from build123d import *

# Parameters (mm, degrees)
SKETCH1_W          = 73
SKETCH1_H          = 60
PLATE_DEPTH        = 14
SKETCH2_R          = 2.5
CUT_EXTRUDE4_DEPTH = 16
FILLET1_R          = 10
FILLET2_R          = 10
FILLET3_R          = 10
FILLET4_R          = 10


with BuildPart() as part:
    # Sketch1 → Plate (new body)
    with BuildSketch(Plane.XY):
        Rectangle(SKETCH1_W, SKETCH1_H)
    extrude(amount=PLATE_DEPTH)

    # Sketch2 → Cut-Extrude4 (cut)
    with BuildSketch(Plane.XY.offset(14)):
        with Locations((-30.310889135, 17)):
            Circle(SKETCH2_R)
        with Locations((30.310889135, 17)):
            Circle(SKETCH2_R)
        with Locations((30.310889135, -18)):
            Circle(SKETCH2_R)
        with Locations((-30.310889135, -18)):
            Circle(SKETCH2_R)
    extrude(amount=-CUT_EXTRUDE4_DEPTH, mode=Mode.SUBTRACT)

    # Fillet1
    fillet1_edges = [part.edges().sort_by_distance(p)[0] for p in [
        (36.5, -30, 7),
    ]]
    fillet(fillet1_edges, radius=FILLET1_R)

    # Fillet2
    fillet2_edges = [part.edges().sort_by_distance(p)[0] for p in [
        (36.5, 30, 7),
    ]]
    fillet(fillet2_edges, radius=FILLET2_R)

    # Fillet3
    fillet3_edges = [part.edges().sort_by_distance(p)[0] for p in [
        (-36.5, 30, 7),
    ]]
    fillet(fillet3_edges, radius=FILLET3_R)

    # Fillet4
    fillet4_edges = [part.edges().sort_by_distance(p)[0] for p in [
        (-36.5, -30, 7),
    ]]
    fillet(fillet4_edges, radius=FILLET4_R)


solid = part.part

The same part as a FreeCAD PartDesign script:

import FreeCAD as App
import Part
import Sketcher
Q = App.Units.Quantity


def edges_at(feature, points):
    """Names of the edges that pass closest to the given points."""
    edges = feature.Shape.Edges
    near = lambda p: min(range(len(edges)), key=lambda i: edges[i].distToShape(Part.Vertex(*p))[0])
    return sorted({f"Edge{near(p) + 1}" for p in points})

doc = App.newDocument("Part")
body = doc.addObject("PartDesign::Body", "Body")

sketch1 = doc.addObject("Sketcher::SketchObject", "Sketch")
body.addObject(sketch1)
sketch1.AttachmentSupport = (doc.XY_Plane, [""])
sketch1.MapMode = "FlatFace"
sketch1.addGeometry([
    Part.LineSegment(App.Vector(-36.5, 30, 0), App.Vector(-36.5, -30, 0)),
    Part.LineSegment(App.Vector(-36.5, -30, 0), App.Vector(36.5, -30, 0)),
    Part.LineSegment(App.Vector(36.5, -30, 0), App.Vector(36.5, 30, 0)),
    Part.LineSegment(App.Vector(36.5, 30, 0), App.Vector(-36.5, 30, 0)),
], False)
sketch1.addConstraint([
    Sketcher.Constraint("Coincident", 0, 2, 1, 1),
    Sketcher.Constraint("Coincident", 1, 2, 2, 1),
    Sketcher.Constraint("Coincident", 2, 2, 3, 1),
    Sketcher.Constraint("Coincident", 3, 2, 0, 1),
    Sketcher.Constraint("Vertical", 0),
    Sketcher.Constraint("Horizontal", 1),
    Sketcher.Constraint("Vertical", 2),
    Sketcher.Constraint("Horizontal", 3),
    Sketcher.Constraint("Symmetric", 0, 2, 2, 2, -1, 1),
    Sketcher.Constraint("DistanceX", 1, 1, 1, 2, Q("73 mm")),
    Sketcher.Constraint("DistanceY", 0, 2, 0, 1, Q("60 mm")),
])
pad1 = doc.addObject("PartDesign::Pad", "Pad")
body.addObject(pad1)
pad1.Profile = sketch1
pad1.Length = 14

sketch2 = doc.addObject("Sketcher::SketchObject", "Sketch001")
body.addObject(sketch2)
sketch2.AttachmentSupport = (doc.XY_Plane, [""])
sketch2.MapMode = "FlatFace"
sketch2.AttachmentOffset = App.Placement(App.Vector(0, 0, 14), App.Rotation())
sketch2.addGeometry([
    Part.Circle(App.Vector(-30.310889, 17, 0), App.Vector(0, 0, 1), 2.5),
    Part.Circle(App.Vector(30.310889, 17, 0), App.Vector(0, 0, 1), 2.5),
    Part.Circle(App.Vector(30.310889, -18, 0), App.Vector(0, 0, 1), 2.5),
    Part.Circle(App.Vector(-30.310889, -18, 0), App.Vector(0, 0, 1), 2.5),
], False)
sketch2.addConstraint([
    Sketcher.Constraint("Equal", 0, 1),
    Sketcher.Constraint("Equal", 1, 2),
    Sketcher.Constraint("Equal", 2, 3),
    Sketcher.Constraint("Symmetric", 0, 3, 1, 3, -2),
    Sketcher.Constraint("Symmetric", 2, 3, 3, 3, -2),
    Sketcher.Constraint("Vertical", 1, 3, 2, 3),
    Sketcher.Constraint("Diameter", 0, Q("5 mm")),
    Sketcher.Constraint("DistanceY", -1, 1, 0, 3, Q("17 mm")),
    Sketcher.Constraint("DistanceY", 2, 3, -1, 1, Q("18 mm")),
    Sketcher.Constraint("DistanceX", 0, 3, -1, 1, Q("30.310889 mm")),
])
pocket1 = doc.addObject("PartDesign::Pocket", "Pocket")
body.addObject(pocket1)
pocket1.Profile = sketch2
pocket1.Length = 16
doc.recompute()

fillet = doc.addObject("PartDesign::Fillet", "Fillet")
body.addObject(fillet)
fillet.Base = (pocket1, edges_at(pocket1, [(36.5, -30, 7)]))
fillet.Radius = 10
doc.recompute()

fillet2 = doc.addObject("PartDesign::Fillet", "Fillet001")
body.addObject(fillet2)
fillet2.Base = (fillet, edges_at(fillet, [(36.5, 30, 7)]))
fillet2.Radius = 10
doc.recompute()

fillet3 = doc.addObject("PartDesign::Fillet", "Fillet002")
body.addObject(fillet3)
fillet3.Base = (fillet2, edges_at(fillet2, [(-36.5, 30, 7)]))
fillet3.Radius = 10
doc.recompute()

fillet4 = doc.addObject("PartDesign::Fillet", "Fillet003")
body.addObject(fillet4)
fillet4.Base = (fillet3, edges_at(fillet3, [(-36.5, -30, 7)]))
fillet4.Radius = 10

doc.recompute()
